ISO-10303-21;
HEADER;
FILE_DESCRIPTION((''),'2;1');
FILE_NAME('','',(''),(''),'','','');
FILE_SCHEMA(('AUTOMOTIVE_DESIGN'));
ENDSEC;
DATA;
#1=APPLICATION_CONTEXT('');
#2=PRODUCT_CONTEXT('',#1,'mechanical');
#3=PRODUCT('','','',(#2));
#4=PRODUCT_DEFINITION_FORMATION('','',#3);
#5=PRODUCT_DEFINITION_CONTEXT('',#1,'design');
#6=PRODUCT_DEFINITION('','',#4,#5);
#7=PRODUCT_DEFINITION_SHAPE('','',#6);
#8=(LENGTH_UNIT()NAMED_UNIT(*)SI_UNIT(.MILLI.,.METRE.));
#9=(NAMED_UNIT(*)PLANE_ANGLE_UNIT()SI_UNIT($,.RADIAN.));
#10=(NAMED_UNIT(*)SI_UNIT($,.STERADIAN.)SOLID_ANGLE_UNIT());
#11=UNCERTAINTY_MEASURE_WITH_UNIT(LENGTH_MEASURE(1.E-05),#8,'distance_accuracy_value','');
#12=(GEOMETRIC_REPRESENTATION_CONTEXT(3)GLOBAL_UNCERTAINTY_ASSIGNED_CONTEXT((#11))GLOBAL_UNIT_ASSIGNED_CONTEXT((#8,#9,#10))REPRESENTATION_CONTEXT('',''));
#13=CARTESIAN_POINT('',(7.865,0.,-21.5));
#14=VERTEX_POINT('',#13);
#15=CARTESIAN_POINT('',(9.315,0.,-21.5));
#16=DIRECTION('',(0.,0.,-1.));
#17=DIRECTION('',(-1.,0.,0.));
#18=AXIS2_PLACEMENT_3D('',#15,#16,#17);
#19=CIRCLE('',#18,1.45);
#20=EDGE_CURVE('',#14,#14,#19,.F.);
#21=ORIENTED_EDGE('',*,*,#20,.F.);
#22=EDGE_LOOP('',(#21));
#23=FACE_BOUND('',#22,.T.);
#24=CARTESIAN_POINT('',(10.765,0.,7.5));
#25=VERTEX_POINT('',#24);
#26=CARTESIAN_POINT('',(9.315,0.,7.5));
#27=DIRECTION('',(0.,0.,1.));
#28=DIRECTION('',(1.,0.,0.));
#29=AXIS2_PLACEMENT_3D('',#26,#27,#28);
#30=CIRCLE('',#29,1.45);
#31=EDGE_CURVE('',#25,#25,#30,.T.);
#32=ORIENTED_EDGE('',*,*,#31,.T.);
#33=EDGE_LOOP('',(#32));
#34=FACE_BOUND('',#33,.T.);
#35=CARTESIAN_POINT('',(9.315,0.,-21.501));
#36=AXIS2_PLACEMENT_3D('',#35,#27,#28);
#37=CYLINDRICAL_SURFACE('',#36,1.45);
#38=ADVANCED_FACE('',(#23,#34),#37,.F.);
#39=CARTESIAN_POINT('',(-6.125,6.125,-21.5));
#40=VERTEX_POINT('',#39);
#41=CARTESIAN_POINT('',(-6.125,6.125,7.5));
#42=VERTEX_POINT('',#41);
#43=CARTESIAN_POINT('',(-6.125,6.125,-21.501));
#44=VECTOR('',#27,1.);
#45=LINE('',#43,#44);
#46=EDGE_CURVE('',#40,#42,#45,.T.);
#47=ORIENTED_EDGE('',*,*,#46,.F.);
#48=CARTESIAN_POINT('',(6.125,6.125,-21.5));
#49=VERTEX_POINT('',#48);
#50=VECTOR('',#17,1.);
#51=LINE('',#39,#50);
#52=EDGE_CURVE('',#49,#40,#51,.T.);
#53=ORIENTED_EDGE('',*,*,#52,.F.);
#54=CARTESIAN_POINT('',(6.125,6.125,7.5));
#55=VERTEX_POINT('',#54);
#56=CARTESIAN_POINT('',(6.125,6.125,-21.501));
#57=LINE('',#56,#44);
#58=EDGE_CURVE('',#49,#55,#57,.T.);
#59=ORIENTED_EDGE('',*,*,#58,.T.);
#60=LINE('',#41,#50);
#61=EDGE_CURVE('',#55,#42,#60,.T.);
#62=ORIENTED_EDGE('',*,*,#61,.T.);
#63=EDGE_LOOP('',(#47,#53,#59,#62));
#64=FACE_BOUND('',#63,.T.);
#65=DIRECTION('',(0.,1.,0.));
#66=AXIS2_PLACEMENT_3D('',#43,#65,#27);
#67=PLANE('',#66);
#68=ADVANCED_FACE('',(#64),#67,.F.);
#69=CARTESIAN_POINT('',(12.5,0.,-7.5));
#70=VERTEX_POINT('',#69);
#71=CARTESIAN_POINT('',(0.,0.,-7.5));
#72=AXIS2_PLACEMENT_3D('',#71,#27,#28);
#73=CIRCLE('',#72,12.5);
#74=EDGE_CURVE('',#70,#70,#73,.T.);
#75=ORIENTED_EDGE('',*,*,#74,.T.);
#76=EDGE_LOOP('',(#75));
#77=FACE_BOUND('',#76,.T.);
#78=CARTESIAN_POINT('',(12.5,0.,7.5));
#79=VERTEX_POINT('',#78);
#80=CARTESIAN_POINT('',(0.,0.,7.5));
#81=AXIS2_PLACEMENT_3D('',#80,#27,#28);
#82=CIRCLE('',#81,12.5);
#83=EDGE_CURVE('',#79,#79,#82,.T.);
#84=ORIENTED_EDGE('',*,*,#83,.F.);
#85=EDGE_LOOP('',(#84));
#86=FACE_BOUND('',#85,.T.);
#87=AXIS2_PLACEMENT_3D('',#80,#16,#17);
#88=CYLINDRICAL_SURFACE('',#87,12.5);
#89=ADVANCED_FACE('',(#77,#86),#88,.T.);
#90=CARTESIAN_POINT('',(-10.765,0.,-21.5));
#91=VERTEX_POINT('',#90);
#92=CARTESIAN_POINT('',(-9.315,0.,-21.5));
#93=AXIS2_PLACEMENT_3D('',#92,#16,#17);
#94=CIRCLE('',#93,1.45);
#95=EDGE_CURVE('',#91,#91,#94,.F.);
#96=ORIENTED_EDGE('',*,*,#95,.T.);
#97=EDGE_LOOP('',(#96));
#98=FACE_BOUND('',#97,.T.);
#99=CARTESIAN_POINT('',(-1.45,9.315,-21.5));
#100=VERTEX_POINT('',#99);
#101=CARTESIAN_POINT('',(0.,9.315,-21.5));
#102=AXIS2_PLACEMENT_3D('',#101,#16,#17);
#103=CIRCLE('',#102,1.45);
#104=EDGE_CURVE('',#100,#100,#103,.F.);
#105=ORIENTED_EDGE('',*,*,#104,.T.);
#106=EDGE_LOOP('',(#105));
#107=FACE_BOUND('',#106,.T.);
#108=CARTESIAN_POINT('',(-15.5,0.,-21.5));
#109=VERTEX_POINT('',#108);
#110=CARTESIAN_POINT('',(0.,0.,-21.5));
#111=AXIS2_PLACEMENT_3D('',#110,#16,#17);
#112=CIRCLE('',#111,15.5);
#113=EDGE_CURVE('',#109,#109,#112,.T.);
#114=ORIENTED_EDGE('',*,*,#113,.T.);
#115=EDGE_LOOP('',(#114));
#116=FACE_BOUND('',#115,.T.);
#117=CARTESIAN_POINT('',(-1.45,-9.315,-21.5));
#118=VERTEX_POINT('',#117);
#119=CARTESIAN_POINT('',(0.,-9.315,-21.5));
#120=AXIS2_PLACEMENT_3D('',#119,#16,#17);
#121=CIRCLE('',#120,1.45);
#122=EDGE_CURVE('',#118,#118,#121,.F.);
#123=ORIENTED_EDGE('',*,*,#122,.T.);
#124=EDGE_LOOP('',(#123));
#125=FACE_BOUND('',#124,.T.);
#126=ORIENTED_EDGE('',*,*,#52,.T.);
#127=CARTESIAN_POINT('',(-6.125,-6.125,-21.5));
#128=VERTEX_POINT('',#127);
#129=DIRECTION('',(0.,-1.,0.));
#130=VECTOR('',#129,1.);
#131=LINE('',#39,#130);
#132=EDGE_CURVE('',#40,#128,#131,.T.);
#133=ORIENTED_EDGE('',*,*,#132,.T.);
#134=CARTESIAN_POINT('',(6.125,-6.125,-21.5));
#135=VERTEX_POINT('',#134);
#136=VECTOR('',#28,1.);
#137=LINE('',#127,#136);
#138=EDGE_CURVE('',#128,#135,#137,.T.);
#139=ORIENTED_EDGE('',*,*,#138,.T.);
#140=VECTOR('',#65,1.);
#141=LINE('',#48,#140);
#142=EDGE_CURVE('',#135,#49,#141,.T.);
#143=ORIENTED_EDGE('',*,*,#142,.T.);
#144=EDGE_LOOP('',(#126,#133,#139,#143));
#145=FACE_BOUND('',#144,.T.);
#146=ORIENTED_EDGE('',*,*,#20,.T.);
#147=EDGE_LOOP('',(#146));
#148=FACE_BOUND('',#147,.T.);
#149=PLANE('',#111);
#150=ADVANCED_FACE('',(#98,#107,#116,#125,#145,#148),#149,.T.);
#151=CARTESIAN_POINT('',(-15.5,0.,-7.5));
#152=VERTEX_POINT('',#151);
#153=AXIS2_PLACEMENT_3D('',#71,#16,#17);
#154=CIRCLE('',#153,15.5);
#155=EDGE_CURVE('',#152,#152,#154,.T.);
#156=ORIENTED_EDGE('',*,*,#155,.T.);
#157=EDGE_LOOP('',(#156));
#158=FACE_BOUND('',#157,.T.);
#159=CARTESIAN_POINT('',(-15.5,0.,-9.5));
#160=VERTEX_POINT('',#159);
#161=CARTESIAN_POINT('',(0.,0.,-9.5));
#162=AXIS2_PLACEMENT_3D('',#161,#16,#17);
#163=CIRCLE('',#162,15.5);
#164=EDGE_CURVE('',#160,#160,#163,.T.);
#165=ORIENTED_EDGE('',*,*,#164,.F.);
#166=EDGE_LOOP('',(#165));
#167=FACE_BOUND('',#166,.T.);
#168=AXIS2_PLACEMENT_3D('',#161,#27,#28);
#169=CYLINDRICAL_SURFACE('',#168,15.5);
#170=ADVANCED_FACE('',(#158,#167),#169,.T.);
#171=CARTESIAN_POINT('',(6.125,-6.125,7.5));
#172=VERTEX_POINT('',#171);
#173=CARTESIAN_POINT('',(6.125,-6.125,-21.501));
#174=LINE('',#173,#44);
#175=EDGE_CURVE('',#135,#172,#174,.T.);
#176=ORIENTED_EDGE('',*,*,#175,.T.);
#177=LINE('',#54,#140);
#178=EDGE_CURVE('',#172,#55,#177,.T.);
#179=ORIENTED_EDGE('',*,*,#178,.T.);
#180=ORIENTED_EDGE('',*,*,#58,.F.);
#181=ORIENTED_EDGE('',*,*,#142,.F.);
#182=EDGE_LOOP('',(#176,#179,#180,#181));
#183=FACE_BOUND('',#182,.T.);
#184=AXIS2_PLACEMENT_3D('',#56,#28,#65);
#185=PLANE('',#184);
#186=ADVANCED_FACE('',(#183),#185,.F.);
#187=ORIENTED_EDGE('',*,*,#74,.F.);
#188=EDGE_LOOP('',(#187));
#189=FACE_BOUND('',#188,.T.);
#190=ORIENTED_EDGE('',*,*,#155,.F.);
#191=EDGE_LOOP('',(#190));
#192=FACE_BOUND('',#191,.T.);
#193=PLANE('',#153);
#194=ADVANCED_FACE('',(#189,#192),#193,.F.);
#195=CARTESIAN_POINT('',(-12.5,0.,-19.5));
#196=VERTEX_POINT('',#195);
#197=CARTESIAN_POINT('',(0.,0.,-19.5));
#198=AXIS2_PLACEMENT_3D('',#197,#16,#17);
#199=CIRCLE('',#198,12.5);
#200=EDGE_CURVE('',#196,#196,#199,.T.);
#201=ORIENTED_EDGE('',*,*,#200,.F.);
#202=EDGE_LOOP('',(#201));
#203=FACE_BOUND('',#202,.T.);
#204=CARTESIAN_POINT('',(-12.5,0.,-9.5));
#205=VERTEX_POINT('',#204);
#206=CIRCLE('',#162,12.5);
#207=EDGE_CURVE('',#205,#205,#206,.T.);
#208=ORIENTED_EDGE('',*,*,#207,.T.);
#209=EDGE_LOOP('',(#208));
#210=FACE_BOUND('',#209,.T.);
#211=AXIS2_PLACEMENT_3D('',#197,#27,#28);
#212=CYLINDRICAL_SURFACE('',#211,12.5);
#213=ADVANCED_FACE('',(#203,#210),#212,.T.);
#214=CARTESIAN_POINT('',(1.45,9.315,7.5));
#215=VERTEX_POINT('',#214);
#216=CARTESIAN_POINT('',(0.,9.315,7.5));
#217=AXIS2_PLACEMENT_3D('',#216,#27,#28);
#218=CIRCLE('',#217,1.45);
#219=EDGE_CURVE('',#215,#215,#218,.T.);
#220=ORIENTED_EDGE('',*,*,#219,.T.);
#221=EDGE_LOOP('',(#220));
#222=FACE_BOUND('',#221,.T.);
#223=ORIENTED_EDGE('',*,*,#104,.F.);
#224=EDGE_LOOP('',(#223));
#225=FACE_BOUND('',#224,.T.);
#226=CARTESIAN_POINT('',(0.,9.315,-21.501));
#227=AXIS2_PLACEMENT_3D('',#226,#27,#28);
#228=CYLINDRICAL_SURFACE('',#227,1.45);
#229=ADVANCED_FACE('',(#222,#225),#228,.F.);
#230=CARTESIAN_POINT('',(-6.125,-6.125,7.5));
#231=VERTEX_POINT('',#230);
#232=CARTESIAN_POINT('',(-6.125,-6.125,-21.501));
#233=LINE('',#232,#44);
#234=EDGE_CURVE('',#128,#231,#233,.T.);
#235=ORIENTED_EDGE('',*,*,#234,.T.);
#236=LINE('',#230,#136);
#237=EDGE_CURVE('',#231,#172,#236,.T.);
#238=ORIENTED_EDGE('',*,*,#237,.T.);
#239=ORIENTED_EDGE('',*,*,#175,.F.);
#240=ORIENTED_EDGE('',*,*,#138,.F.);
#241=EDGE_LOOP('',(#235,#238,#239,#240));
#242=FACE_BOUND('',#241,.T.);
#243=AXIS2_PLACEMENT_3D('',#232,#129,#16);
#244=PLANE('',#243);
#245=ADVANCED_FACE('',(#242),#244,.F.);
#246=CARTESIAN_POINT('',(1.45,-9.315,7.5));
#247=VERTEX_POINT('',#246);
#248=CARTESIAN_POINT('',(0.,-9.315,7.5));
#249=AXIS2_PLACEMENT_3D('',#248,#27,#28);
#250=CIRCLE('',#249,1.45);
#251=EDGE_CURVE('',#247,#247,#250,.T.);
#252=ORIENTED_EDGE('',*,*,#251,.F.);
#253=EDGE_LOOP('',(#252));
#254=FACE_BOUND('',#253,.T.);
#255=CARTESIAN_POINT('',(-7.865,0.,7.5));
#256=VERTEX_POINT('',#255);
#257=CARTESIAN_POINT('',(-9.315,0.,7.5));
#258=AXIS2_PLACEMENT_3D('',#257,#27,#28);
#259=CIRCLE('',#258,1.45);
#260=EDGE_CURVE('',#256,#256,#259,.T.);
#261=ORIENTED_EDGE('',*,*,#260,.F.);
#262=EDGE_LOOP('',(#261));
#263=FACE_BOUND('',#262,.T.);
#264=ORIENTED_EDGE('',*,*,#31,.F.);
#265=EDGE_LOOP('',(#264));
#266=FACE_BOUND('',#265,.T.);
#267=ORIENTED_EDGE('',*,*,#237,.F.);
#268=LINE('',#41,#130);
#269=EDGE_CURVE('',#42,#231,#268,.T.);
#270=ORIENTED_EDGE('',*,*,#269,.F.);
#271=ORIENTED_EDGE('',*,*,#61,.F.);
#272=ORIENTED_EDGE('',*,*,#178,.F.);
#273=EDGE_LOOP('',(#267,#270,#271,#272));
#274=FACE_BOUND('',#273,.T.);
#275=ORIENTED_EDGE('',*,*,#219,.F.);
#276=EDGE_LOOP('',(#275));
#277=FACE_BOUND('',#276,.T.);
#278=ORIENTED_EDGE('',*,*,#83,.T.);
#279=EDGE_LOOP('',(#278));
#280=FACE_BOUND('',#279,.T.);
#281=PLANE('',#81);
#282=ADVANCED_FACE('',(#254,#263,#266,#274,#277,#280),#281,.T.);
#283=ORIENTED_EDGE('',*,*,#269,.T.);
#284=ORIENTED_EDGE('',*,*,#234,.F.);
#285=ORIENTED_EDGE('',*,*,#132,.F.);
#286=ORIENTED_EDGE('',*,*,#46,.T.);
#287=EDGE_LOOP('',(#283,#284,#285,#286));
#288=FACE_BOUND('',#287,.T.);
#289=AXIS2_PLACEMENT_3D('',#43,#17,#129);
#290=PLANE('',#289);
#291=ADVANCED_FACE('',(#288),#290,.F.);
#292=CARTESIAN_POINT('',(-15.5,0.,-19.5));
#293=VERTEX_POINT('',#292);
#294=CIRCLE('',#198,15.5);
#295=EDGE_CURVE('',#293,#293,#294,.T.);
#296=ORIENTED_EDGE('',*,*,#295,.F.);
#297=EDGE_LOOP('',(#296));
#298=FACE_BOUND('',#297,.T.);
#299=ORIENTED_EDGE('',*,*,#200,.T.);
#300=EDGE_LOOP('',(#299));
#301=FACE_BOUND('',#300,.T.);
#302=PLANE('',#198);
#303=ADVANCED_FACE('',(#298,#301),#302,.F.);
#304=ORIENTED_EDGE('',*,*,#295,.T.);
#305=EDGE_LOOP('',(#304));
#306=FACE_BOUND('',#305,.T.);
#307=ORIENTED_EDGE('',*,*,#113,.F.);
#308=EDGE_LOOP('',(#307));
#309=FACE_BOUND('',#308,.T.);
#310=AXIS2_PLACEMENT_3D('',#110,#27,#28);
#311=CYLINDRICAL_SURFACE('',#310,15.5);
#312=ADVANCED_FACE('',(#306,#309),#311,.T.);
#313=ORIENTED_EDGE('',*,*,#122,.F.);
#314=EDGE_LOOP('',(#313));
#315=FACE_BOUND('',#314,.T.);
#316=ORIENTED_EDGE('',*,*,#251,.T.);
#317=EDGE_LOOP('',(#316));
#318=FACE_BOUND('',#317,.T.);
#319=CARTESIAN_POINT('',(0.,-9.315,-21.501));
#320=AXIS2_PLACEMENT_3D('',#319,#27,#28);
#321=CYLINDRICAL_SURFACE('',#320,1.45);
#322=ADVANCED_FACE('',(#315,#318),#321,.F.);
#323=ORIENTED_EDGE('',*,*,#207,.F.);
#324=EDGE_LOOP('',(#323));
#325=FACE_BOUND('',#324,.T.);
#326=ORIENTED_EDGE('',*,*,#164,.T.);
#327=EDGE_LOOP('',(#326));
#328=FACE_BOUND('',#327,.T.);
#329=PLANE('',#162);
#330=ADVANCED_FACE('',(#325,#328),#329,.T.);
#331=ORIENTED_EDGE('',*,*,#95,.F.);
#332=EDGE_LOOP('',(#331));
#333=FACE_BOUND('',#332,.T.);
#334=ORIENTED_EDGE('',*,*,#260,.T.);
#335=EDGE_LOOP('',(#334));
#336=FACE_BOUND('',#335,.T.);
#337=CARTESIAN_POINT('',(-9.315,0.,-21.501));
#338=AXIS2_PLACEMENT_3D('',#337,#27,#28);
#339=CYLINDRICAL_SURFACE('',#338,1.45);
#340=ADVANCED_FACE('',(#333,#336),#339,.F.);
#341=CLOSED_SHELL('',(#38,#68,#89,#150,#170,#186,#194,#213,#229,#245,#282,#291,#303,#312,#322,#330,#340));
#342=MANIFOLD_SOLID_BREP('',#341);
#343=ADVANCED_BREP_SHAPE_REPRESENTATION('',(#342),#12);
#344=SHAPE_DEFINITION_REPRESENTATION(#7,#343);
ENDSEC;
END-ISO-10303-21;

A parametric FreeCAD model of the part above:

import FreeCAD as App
import Part
import Sketcher
from FreeCAD import Vector
Q = App.Units.Quantity

doc = App.newDocument("Part")
body = doc.addObject("PartDesign::Body", "Body")

# Sketch on XY plane
sketch1 = body.newObject("Sketcher::SketchObject", "Sketch")
sketch1.AttachmentSupport = (doc.getObject("XY_Plane"), [""])
sketch1.MapMode = "FlatFace"
sketch1.addGeometry(Part.Circle(Vector(0, 0, 0), Vector(0, 0, 1), 12), False)
sketch1.addConstraint([
    Sketcher.Constraint("Coincident", 0, 3, -1, 1),
    Sketcher.Constraint("Diameter", 0, Q("25 mm")),
])
pad1 = body.newObject("PartDesign::Pad", "Pad")
pad1.Profile = sketch1
pad1.Length = 15
pad1.Midplane = True

# Sketch on XY plane
sketch2 = body.newObject("Sketcher::SketchObject", "Sketch001")
sketch2.AttachmentSupport = (doc.getObject("XY_Plane"), [""])
sketch2.MapMode = "FlatFace"
sketch2.AttachmentOffset = App.Placement(Vector(0, 0, -7.5), App.Rotation())
sketch2.addGeometry(Part.Circle(Vector(0, 0, 0), Vector(0, 0, 1), 16), False)
sketch2.addConstraint([
    Sketcher.Constraint("Coincident", 0, 3, -1, 1),
    Sketcher.Constraint("Diameter", 0, Q("31 mm")),
])
pad2 = body.newObject("PartDesign::Pad", "Pad001")
pad2.Profile = sketch2
pad2.Length = 2
pad2.Reversed = True

# Sketch on XY plane
sketch3 = body.newObject("Sketcher::SketchObject", "Sketch002")
sketch3.AttachmentSupport = (doc.getObject("XY_Plane"), [""])
sketch3.MapMode = "FlatFace"
sketch3.AttachmentOffset = App.Placement(Vector(0, 0, -9.5), App.Rotation())
sketch3.addGeometry(Part.Circle(Vector(0, 0, 0), Vector(0, 0, 1), 12), False)
sketch3.addConstraint([
    Sketcher.Constraint("Coincident", 0, 3, -1, 1),
    Sketcher.Constraint("Diameter", 0, Q("25 mm")),
])
pad3 = body.newObject("PartDesign::Pad", "Pad002")
pad3.Profile = sketch3
pad3.Length = 10
pad3.Reversed = True

# Sketch on XY plane
sketch4 = body.newObject("Sketcher::SketchObject", "Sketch003")
sketch4.AttachmentSupport = (doc.getObject("XY_Plane"), [""])
sketch4.MapMode = "FlatFace"
sketch4.AttachmentOffset = App.Placement(Vector(0, 0, -19.5), App.Rotation())
sketch4.addGeometry(Part.Circle(Vector(0, 0, 0), Vector(0, 0, 1), 16), False)
sketch4.addConstraint([
    Sketcher.Constraint("Coincident", 0, 3, -1, 1),
    Sketcher.Constraint("Diameter", 0, Q("31 mm")),
])
pad4 = body.newObject("PartDesign::Pad", "Pad003")
pad4.Profile = sketch4
pad4.Length = 2
pad4.Reversed = True

# Sketch on XY plane
sketch5 = body.newObject("Sketcher::SketchObject", "Sketch004")
sketch5.AttachmentSupport = (doc.getObject("XY_Plane"), [""])
sketch5.MapMode = "FlatFace"
sketch5.AttachmentOffset = App.Placement(Vector(0, 0, 7.5), App.Rotation())
sketch5.addGeometry([
    Part.LineSegment(Vector(-6, 6, 0), Vector(-6, -6, 0)),
    Part.LineSegment(Vector(-6, -6, 0), Vector(6, -6, 0)),
    Part.LineSegment(Vector(6, -6, 0), Vector(6, 6, 0)),
    Part.LineSegment(Vector(6, 6, 0), Vector(-6, 6, 0)),
], False)
sketch5.addConstraint([
    Sketcher.Constraint("Coincident", 0, 2, 1, 1),
    Sketcher.Constraint("Coincident", 1, 2, 2, 1),
    Sketcher.Constraint("Coincident", 2, 2, 3, 1),
    Sketcher.Constraint("Coincident", 3, 2, 0, 1),
    Sketcher.Constraint("Vertical", 0),
    Sketcher.Constraint("Horizontal", 1),
    Sketcher.Constraint("Vertical", 2),
    Sketcher.Constraint("Horizontal", 3),
    Sketcher.Constraint("Symmetric", 0, 2, 2, 2, -1, 1),
    Sketcher.Constraint("Equal", 3, 0),
    Sketcher.Constraint("DistanceX", 1, 1, 1, 2, Q("12.25 mm")),
])
pocket1 = body.newObject("PartDesign::Pocket", "Pocket")
pocket1.Profile = sketch5
pocket1.Type = "UpToFirst"

# Sketch on XY plane
sketch6 = body.newObject("Sketcher::SketchObject", "Sketch005")
sketch6.AttachmentSupport = (doc.getObject("XY_Plane"), [""])
sketch6.MapMode = "FlatFace"
sketch6.AttachmentOffset = App.Placement(Vector(0, 0, 7.5), App.Rotation())
sketch6.addGeometry(Part.Circle(Vector(9.3, 0, 0), Vector(0, 0, 1), 1.4), False)
sketch6.addConstraint([
    Sketcher.Constraint("PointOnObject", 0, 3, -1),
    Sketcher.Constraint("Diameter", 0, Q("2.9 mm")),
    Sketcher.Constraint("DistanceX", -1, 1, 0, 3, Q("9.315 mm")),
])
pocket2 = body.newObject("PartDesign::Pocket", "Pocket001")
pocket2.Profile = sketch6
pocket2.Type = "UpToFirst"

# Sketch on XY plane
sketch7 = body.newObject("Sketcher::SketchObject", "Sketch006")
sketch7.AttachmentSupport = (doc.getObject("XY_Plane"), [""])
sketch7.MapMode = "FlatFace"
sketch7.AttachmentOffset = App.Placement(Vector(0, 0, 7.5), App.Rotation())
sketch7.addGeometry(Part.Circle(Vector(0, -9.3, 0), Vector(0, 0, 1), 1.4), False)
sketch7.addConstraint([
    Sketcher.Constraint("PointOnObject", 0, 3, -2),
    Sketcher.Constraint("Diameter", 0, Q("2.9 mm")),
    Sketcher.Constraint("DistanceY", 0, 3, -1, 1, Q("9.315 mm")),
])
pocket3 = body.newObject("PartDesign::Pocket", "Pocket002")
pocket3.Profile = sketch7
pocket3.Type = "UpToFirst"

# Sketch on XY plane
sketch8 = body.newObject("Sketcher::SketchObject", "Sketch007")
sketch8.AttachmentSupport = (doc.getObject("XY_Plane"), [""])
sketch8.MapMode = "FlatFace"
sketch8.AttachmentOffset = App.Placement(Vector(0, 0, 7.5), App.Rotation())
sketch8.addGeometry(Part.Circle(Vector(-9.3, 0, 0), Vector(0, 0, 1), 1.4), False)
sketch8.addConstraint([
    Sketcher.Constraint("PointOnObject", 0, 3, -1),
    Sketcher.Constraint("Diameter", 0, Q("2.9 mm")),
    Sketcher.Constraint("DistanceX", 0, 3, -1, 1, Q("9.315 mm")),
])
pocket4 = body.newObject("PartDesign::Pocket", "Pocket003")
pocket4.Profile = sketch8
pocket4.Type = "UpToFirst"

# Sketch on XY plane
sketch9 = body.newObject("Sketcher::SketchObject", "Sketch008")
sketch9.AttachmentSupport = (doc.getObject("XY_Plane"), [""])
sketch9.MapMode = "FlatFace"
sketch9.AttachmentOffset = App.Placement(Vector(0, 0, 7.5), App.Rotation())
sketch9.addGeometry(Part.Circle(Vector(0, 9.3, 0), Vector(0, 0, 1), 1.4), False)
sketch9.addConstraint([
    Sketcher.Constraint("PointOnObject", 0, 3, -2),
    Sketcher.Constraint("Diameter", 0, Q("2.9 mm")),
    Sketcher.Constraint("DistanceY", -1, 1, 0, 3, Q("9.315 mm")),
])
pocket5 = body.newObject("PartDesign::Pocket", "Pocket004")
pocket5.Profile = sketch9
pocket5.Type = "UpToFirst"

doc.recompute()
